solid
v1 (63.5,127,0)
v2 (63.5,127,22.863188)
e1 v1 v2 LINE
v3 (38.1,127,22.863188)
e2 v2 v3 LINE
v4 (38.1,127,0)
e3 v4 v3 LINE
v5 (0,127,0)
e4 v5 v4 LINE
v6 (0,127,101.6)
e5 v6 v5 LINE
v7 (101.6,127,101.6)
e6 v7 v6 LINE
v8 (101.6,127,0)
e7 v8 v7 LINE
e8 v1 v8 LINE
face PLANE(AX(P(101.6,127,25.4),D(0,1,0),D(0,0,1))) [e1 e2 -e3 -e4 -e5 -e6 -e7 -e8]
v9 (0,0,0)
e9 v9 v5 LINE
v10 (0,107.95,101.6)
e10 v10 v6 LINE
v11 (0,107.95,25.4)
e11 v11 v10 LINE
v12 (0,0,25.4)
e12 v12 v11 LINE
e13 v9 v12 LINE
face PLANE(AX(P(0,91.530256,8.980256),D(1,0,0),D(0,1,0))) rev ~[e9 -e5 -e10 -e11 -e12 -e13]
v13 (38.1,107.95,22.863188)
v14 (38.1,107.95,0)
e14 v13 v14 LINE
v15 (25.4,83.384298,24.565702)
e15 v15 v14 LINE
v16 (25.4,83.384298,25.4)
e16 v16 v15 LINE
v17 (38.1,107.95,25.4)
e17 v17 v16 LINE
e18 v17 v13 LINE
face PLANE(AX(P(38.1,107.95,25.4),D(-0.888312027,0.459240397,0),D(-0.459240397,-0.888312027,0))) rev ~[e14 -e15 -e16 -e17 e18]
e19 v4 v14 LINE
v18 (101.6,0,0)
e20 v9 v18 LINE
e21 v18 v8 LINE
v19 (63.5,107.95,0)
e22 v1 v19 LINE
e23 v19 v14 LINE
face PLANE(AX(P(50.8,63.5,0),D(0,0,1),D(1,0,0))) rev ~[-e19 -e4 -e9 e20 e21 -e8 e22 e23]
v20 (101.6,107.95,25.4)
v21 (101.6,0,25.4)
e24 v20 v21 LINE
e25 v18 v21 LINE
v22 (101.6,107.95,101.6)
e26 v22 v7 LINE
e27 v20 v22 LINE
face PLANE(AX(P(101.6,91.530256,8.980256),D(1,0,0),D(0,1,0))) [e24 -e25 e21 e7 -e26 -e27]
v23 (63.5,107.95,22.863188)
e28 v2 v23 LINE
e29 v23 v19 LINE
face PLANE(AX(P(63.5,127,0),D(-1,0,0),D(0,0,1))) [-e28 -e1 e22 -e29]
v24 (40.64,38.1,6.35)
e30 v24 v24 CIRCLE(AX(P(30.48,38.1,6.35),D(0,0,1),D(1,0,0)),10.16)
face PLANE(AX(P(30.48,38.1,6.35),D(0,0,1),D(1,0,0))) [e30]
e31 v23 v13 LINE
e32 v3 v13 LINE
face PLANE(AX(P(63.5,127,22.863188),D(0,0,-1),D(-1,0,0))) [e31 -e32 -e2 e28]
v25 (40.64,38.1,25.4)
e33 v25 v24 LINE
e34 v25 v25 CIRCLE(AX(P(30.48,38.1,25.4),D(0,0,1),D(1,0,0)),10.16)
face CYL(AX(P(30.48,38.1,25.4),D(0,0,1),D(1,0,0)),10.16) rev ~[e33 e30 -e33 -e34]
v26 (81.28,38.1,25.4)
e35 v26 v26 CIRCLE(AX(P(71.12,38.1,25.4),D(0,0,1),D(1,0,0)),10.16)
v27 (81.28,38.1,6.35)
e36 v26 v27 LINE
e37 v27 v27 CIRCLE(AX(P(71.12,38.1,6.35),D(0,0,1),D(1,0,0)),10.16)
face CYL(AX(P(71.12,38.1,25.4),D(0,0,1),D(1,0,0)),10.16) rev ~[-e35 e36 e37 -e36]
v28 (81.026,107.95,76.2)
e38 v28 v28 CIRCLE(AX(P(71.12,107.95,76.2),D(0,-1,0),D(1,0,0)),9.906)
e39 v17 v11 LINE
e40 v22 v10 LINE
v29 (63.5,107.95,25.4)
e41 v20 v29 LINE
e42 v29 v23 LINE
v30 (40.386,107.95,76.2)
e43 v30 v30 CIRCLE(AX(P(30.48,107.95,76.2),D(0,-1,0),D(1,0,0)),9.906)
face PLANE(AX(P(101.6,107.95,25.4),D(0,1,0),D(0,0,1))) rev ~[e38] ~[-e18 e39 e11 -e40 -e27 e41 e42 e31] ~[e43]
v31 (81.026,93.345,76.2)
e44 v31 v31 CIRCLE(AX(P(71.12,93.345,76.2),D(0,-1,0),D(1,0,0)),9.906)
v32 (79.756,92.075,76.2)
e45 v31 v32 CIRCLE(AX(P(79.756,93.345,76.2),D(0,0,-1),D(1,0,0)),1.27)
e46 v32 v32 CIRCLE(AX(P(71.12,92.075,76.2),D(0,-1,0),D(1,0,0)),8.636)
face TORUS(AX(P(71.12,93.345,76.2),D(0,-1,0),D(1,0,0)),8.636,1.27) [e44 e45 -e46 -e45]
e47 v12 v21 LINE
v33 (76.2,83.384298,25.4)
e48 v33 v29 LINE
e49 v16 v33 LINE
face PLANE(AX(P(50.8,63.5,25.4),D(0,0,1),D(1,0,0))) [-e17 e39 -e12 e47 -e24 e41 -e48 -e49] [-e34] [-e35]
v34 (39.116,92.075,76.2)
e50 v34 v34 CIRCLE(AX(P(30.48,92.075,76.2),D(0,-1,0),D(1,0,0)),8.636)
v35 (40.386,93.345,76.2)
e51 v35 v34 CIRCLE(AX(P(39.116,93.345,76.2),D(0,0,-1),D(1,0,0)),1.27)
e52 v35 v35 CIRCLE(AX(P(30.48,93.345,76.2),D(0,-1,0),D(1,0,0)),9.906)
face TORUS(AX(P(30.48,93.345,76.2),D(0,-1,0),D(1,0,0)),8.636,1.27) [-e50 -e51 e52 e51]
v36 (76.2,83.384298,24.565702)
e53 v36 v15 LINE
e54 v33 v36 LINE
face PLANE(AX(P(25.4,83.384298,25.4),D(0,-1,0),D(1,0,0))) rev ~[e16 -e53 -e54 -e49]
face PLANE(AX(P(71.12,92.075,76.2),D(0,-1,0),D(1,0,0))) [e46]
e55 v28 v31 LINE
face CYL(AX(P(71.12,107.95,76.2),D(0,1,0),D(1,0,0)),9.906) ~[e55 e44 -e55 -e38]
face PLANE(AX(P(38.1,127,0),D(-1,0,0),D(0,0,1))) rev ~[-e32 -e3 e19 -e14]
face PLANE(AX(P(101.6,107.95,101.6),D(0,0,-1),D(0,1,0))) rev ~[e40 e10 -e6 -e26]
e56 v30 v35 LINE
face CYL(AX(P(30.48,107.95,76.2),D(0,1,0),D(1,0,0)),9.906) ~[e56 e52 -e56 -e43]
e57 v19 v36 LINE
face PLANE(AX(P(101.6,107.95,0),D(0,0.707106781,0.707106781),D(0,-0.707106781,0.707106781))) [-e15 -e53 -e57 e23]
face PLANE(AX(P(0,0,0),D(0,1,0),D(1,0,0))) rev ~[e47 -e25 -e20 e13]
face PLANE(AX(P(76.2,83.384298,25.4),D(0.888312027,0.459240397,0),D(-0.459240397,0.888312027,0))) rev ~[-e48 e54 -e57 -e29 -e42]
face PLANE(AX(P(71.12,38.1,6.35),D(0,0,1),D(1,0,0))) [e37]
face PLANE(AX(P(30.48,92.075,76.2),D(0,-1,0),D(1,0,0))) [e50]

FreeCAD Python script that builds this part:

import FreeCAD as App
import Part
import Sketcher

V = App.Vector
Q = App.Units.Quantity


def edges_at(feature, points):
    """Names of the edges that pass closest to the given points."""
    edges = feature.Shape.Edges
    near = lambda p: min(range(len(edges)), key=lambda i: edges[i].distToShape(Part.Vertex(*p))[0])
    return sorted({f"Edge{near(p) + 1}" for p in points})

doc = App.newDocument("Part")
body = doc.addObject("PartDesign::Body", "Body")

sketch1 = body.newObject("Sketcher::SketchObject", "Sketch")
sketch1.AttachmentSupport = (doc.getObject("XY_Plane"), [""])
sketch1.MapMode = "FlatFace"
sketch1.addGeometry(Part.LineSegment(V(0, 127, 0), V(0, 0, 0)), False)
sketch1.addGeometry(Part.LineSegment(V(0, 0, 0), V(102, 0, 0)), False)
sketch1.addGeometry(Part.LineSegment(V(102, 0, 0), V(102, 127, 0)), False)
sketch1.addGeometry(Part.LineSegment(V(102, 127, 0), V(0, 127, 0)), False)
sketch1.addConstraint(Sketcher.Constraint("Coincident", 0, 2, 1, 1))
sketch1.addConstraint(Sketcher.Constraint("Coincident", 1, 2, 2, 1))
sketch1.addConstraint(Sketcher.Constraint("Coincident", 2, 2, 3, 1))
sketch1.addConstraint(Sketcher.Constraint("Coincident", 3, 2, 0, 1))
sketch1.addConstraint(Sketcher.Constraint("Vertical", 0))
sketch1.addConstraint(Sketcher.Constraint("Horizontal", 1))
sketch1.addConstraint(Sketcher.Constraint("Vertical", 2))
sketch1.addConstraint(Sketcher.Constraint("Horizontal", 3))
sketch1.addConstraint(Sketcher.Constraint("Coincident", 0, 2, -1, 1))
sketch1.addConstraint(Sketcher.Constraint("DistanceX", 1, 1, 1, 2, Q("4 in")))
sketch1.addConstraint(Sketcher.Constraint("DistanceY", 0, 2, 0, 1, Q("5 in")))
pad1 = body.newObject("PartDesign::Pad", "Pad")
pad1.Profile = sketch1
pad1.Length = Q("1 in")

sketch2 = body.newObject("Sketcher::SketchObject", "Sketch001")
sketch2.AttachmentSupport = (doc.getObject("XY_Plane"), [""])
sketch2.MapMode = "FlatFace"
sketch2.AttachmentOffset = App.Placement(V(0, 0, 1 * 25.4), App.Rotation())
sketch2.addGeometry(Part.Circle(V(30, 38, 0), V(0, 0, 1), 10), False)
sketch2.addGeometry(Part.Circle(V(71, 38, 0), V(0, 0, 1), 10), False)
sketch2.addConstraint(Sketcher.Constraint("Equal", 0, 1))
sketch2.addConstraint(Sketcher.Constraint("Horizontal", 0, 3, 1, 3))
sketch2.addConstraint(Sketcher.Constraint("Diameter", 0, Q("0.8 in")))
sketch2.addConstraint(Sketcher.Constraint("DistanceX", -1, 1, 0, 3, Q("1.2 in")))
sketch2.addConstraint(Sketcher.Constraint("DistanceY", -1, 1, 0, 3, Q("1.5 in")))
sketch2.addConstraint(Sketcher.Constraint("DistanceX", -1, 1, 1, 3, Q("2.8 in")))
pocket1 = body.newObject("PartDesign::Pocket", "Pocket")
pocket1.Profile = sketch2
pocket1.Length = Q("0.75 in")

sketch3 = body.newObject("Sketcher::SketchObject", "Sketch002")
sketch3.AttachmentSupport = (doc.getObject("YZ_Plane"), [""])
sketch3.MapMode = "FlatFace"
sketch3.AttachmentOffset = App.Placement(V(0, 0, 4 * 25.4), App.Rotation())
sketch3.addGeometry(Part.LineSegment(V(108, 102, 0), V(108, 25, 0)), False)
sketch3.addGeometry(Part.LineSegment(V(108, 25, 0), V(127, 25, 0)), False)
sketch3.addGeometry(Part.LineSegment(V(127, 25, 0), V(127, 102, 0)), False)
sketch3.addGeometry(Part.LineSegment(V(127, 102, 0), V(108, 102, 0)), False)
sketch3.addConstraint(Sketcher.Constraint("Coincident", 0, 2, 1, 1))
sketch3.addConstraint(Sketcher.Constraint("Coincident", 1, 2, 2, 1))
sketch3.addConstraint(Sketcher.Constraint("Coincident", 2, 2, 3, 1))
sketch3.addConstraint(Sketcher.Constraint("Coincident", 3, 2, 0, 1))
sketch3.addConstraint(Sketcher.Constraint("Vertical", 0))
sketch3.addConstraint(Sketcher.Constraint("Horizontal", 1))
sketch3.addConstraint(Sketcher.Constraint("Vertical", 2))
sketch3.addConstraint(Sketcher.Constraint("Horizontal", 3))
sketch3.addConstraint(Sketcher.Constraint("DistanceY", 0, 2, 0, 1, Q("3 in")))
sketch3.addConstraint(Sketcher.Constraint("DistanceY", -1, 1, 0, 2, Q("1 in")))
sketch3.addConstraint(Sketcher.Constraint("DistanceX", -1, 1, 1, 2, Q("5 in")))
sketch3.addConstraint(Sketcher.Constraint("DistanceX", 1, 1, 1, 2, Q("0.75 in")))
pad2 = body.newObject("PartDesign::Pad", "Pad001")
pad2.Profile = sketch3
pad2.Length = Q("4 in")
pad2.Reversed = True

sketch4 = body.newObject("Sketcher::SketchObject", "Sketch003")
sketch4.AttachmentSupport = (doc.getObject("XZ_Plane"), [""])
sketch4.MapMode = "FlatFace"
sketch4.AttachmentOffset = App.Placement(V(0, 0, -4.25 * 25.4), App.Rotation())
sketch4.addGeometry(Part.Circle(V(30, 76, 0), V(0, 0, 1), 10), False)
sketch4.addGeometry(Part.Circle(V(71, 76, 0), V(0, 0, 1), 10), False)
sketch4.addConstraint(Sketcher.Constraint("Equal", 0, 1))
sketch4.addConstraint(Sketcher.Constraint("Horizontal", 0, 3, 1, 3))
sketch4.addConstraint(Sketcher.Constraint("Diameter", 0, Q("0.78 in")))
sketch4.addConstraint(Sketcher.Constraint("DistanceY", -1, 1, 0, 3, Q("3 in")))
sketch4.addConstraint(Sketcher.Constraint("DistanceX", -1, 1, 0, 3, Q("1.2 in")))
sketch4.addConstraint(Sketcher.Constraint("DistanceX", -1, 1, 1, 3, Q("2.8 in")))
pad3 = body.newObject("PartDesign::Pad", "Pad002")
pad3.Profile = sketch4
pad3.Length = Q("0.625 in")
doc.recompute()

fillet = body.newObject("PartDesign::Fillet", "Fillet")
fillet.Base = (pad3, edges_at(pad3, [(61.214, 92.075, 76.2), (20.574, 92.075, 76.2)]))
fillet.Radius = Q("0.05 in")

sketch5 = body.newObject("Sketcher::SketchObject", "Sketch004")
sketch5.AttachmentSupport = (doc.getObject("XY_Plane"), [""])
sketch5.MapMode = "FlatFace"
sketch5.AttachmentOffset = App.Placement(V(0, 0, 1 * 25.4), App.Rotation())
sketch5.addGeometry(Part.LineSegment(V(64, 108, 0), V(38, 108, 0)), False)
sketch5.addGeometry(Part.LineSegment(V(38, 108, 0), V(25, 83, 0)), False)
sketch5.addGeometry(Part.LineSegment(V(25, 83, 0), V(76, 83, 0)), False)
sketch5.addGeometry(Part.LineSegment(V(76, 83, 0), V(64, 108, 0)), False)
sketch5.addConstraint(Sketcher.Constraint("Coincident", 0, 2, 1, 1))
sketch5.addConstraint(Sketcher.Constraint("Coincident", 1, 2, 2, 1))
sketch5.addConstraint(Sketcher.Constraint("Coincident", 2, 2, 3, 1))
sketch5.addConstraint(Sketcher.Constraint("Coincident", 3, 2, 0, 1))
sketch5.addConstraint(Sketcher.Constraint("Horizontal", 0))
sketch5.addConstraint(Sketcher.Constraint("Horizontal", 2))
sketch5.addConstraint(Sketcher.Constraint("Equal", 1, 3))
sketch5.addConstraint(Sketcher.Constraint("DistanceX", 0, 2, 0, 1, Q("1 in")))
sketch5.addConstraint(Sketcher.Constraint("DistanceX", 2, 1, 2, 2, Q("2 in")))
sketch5.addConstraint(Sketcher.Constraint("DistanceX", -1, 1, 1, 2, Q("1 in")))
sketch5.addConstraint(Sketcher.Constraint("DistanceY", -1, 1, 0, 2, Q("4.25 in")))
sketch5.addConstraint(Sketcher.Constraint("DistanceY", -1, 1, 1, 2, Q("83.384298 mm")))
pocket2 = body.newObject("PartDesign::Pocket", "Pocket001")
pocket2.Profile = sketch5
pocket2.Type = "ThroughAll"

sketch6 = body.newObject("Sketcher::SketchObject", "Sketch005")
sketch6.AttachmentSupport = (doc.getObject("XZ_Plane"), [""])
sketch6.MapMode = "FlatFace"
sketch6.AttachmentOffset = App.Placement(V(0, 0, -5 * 25.4), App.Rotation())
sketch6.addGeometry(Part.LineSegment(V(64, 23, 0), V(64, 0, 0)), False)
sketch6.addGeometry(Part.LineSegment(V(64, 0, 0), V(38, 0, 0)), False)
sketch6.addGeometry(Part.LineSegment(V(38, 0, 0), V(38, 23, 0)), False)
sketch6.addGeometry(Part.LineSegment(V(38, 23, 0), V(64, 23, 0)), False)
sketch6.addConstraint(Sketcher.Constraint("Coincident", 0, 2, 1, 1))
sketch6.addConstraint(Sketcher.Constraint("Coincident", 1, 2, 2, 1))
sketch6.addConstraint(Sketcher.Constraint("Coincident", 2, 2, 3, 1))
sketch6.addConstraint(Sketcher.Constraint("Coincident", 3, 2, 0, 1))
sketch6.addConstraint(Sketcher.Constraint("Vertical", 0))
sketch6.addConstraint(Sketcher.Constraint("Horizontal", 1))
sketch6.addConstraint(Sketcher.Constraint("Vertical", 2))
sketch6.addConstraint(Sketcher.Constraint("Horizontal", 3))
sketch6.addConstraint(Sketcher.Constraint("PointOnObject", 0, 2, -1))
sketch6.addConstraint(Sketcher.Constraint("DistanceX", 1, 2, 1, 1, Q("1 in")))
sketch6.addConstraint(Sketcher.Constraint("DistanceX", -1, 1, 0, 2, Q("2.5 in")))
sketch6.addConstraint(Sketcher.Constraint("DistanceY", 0, 2, 0, 1, Q("22.863189 mm")))
pocket3 = body.newObject("PartDesign::Pocket", "Pocket002")
pocket3.Profile = sketch6
pocket3.Length = Q("1 in")
pocket3.Reversed = True

sketch7 = body.newObject("Sketcher::SketchObject", "Sketch006")
sketch7.AttachmentSupport = (doc.getObject("YZ_Plane"), [""])
sketch7.MapMode = "FlatFace"
sketch7.AttachmentOffset = App.Placement(V(0, 0, 4 * 25.4), App.Rotation())
sketch7.addGeometry(Part.LineSegment(V(83, 0, 0), V(108, 0, 0)), False)
sketch7.addGeometry(Part.LineSegment(V(108, 0, 0), V(83, 25, 0)), False)
sketch7.addGeometry(Part.LineSegment(V(83, 25, 0), V(83, 0, 0)), False)
sketch7.addConstraint(Sketcher.Constraint("Coincident", 0, 2, 1, 1))
sketch7.addConstraint(Sketcher.Constraint("Coincident", 1, 2, 2, 1))
sketch7.addConstraint(Sketcher.Constraint("Coincident", 2, 2, 0, 1))
sketch7.addConstraint(Sketcher.Constraint("Horizontal", 0))
sketch7.addConstraint(Sketcher.Constraint("Vertical", 2))
sketch7.addConstraint(Sketcher.Constraint("PointOnObject", 0, 2, -1))
sketch7.addConstraint(Sketcher.Constraint("Equal", 0, 2))
sketch7.addConstraint(Sketcher.Constraint("DistanceX", 0, 1, 0, 2, Q("1 in")))
sketch7.addConstraint(Sketcher.Constraint("DistanceX", -1, 1, 0, 2, Q("4.25 in")))
pad4 = body.newObject("PartDesign::Pad", "Pad003")
pad4.Profile = sketch7
pad4.Length = Q("4 in")
pad4.Reversed = True

doc.recompute()
